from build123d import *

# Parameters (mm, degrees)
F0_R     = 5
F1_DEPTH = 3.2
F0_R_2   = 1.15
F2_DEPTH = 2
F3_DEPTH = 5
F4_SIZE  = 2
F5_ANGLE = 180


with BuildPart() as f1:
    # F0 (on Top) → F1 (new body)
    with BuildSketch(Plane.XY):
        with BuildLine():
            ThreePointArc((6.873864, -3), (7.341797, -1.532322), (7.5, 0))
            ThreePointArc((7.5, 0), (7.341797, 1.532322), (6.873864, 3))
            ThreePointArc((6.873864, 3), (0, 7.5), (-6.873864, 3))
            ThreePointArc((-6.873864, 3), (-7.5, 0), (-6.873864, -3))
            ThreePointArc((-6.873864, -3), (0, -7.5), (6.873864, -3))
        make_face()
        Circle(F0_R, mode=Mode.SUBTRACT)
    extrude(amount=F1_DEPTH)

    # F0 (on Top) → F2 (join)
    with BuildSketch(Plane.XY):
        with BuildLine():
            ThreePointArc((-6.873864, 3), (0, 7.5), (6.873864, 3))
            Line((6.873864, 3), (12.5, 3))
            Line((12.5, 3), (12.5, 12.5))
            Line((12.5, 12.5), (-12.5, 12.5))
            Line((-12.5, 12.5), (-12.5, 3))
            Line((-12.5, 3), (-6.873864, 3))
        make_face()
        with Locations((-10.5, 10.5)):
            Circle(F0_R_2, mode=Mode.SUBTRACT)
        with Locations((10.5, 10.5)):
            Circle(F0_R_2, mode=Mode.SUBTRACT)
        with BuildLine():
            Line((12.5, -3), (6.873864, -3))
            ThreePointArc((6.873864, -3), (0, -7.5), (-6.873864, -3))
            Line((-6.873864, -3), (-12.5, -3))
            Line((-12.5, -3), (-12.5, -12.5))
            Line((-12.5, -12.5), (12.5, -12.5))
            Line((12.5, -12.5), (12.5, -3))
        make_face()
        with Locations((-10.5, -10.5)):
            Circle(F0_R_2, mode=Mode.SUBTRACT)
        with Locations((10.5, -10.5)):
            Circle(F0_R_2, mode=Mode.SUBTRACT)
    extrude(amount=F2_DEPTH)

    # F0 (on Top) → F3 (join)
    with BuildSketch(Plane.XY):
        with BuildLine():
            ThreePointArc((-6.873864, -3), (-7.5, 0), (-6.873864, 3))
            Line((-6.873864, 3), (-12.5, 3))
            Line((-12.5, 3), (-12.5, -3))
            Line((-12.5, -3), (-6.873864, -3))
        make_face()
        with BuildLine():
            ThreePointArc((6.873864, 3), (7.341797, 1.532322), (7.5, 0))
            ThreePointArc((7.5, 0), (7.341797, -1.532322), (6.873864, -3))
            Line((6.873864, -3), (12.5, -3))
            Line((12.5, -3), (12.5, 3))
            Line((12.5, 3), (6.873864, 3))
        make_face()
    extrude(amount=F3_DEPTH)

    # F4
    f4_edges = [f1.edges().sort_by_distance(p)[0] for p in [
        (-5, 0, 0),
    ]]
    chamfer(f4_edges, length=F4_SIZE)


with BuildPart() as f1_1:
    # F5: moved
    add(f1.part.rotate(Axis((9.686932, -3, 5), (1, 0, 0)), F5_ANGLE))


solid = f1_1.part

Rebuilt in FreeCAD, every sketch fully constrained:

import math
import FreeCAD as App
import Part
import Sketcher

V = App.Vector
Q = App.Units.Quantity


def edges_at(feature, points):
    """Names of the edges that pass closest to the given points."""
    edges = feature.Shape.Edges
    near = lambda p: min(range(len(edges)), key=lambda i: edges[i].distToShape(Part.Vertex(*p))[0])
    return sorted({f"Edge{near(p) + 1}" for p in points})

doc = App.newDocument("Part")
body = doc.addObject("PartDesign::Body", "Body")

# Sketch on XY plane
sketch1 = body.newObject("Sketcher::SketchObject", "Sketch")
sketch1.AttachmentSupport = (doc.getObject("XY_Plane"), [""])
sketch1.MapMode = "FlatFace"
sketch1.addGeometry(Part.ArcOfCircle(Part.Circle(V(-0.000029, 0.000005, 0), V(0, 0, 1), 7.500029), math.radians(-23.578124), math.radians(-0.000038)), False)
sketch1.addGeometry(Part.ArcOfCircle(Part.Circle(V(-0.000029, -0.000005, 0), V(0, 0, 1), 7.500029), math.radians(0.000038), math.radians(23.578124)), False)
sketch1.addGeometry(Part.ArcOfCircle(Part.Circle(V(0, -0.000001, 0), V(0, 0, 1), 7.500001), math.radians(23.578182), math.radians(156.421818)), False)
sketch1.addGeometry(Part.ArcOfCircle(Part.Circle(V(0.000005, 0, 0), V(0, 0, 1), 7.500005), math.radians(156.421838), math.radians(203.578162)), False)
sketch1.addGeometry(Part.ArcOfCircle(Part.Circle(V(0, 0.000001, 0), V(0, 0, 1), 7.500001), math.radians(-156.421818), math.radians(-23.578182)), False)
sketch1.addGeometry(Part.Circle(V(0, 0, 0), V(0, 0, 1), 5), False)
sketch1.addConstraint(Sketcher.Constraint("Coincident", 0, 2, 1, 1))
sketch1.addConstraint(Sketcher.Constraint("Coincident", 1, 2, 2, 1))
sketch1.addConstraint(Sketcher.Constraint("Coincident", 2, 2, 3, 1))
sketch1.addConstraint(Sketcher.Constraint("Coincident", 3, 2, 4, 1))
sketch1.addConstraint(Sketcher.Constraint("Coincident", 4, 2, 0, 1))
sketch1.addConstraint(Sketcher.Constraint("Coincident", 2, 3, -1, 1))
sketch1.addConstraint(Sketcher.Constraint("Coincident", 3, 3, -1, 1))
sketch1.addConstraint(Sketcher.Constraint("Coincident", 4, 3, -1, 1))
sketch1.addConstraint(Sketcher.Constraint("Coincident", 5, 3, -1, 1))
sketch1.addConstraint(Sketcher.Constraint("Coincident", 1, 3, 0, 3))
sketch1.addConstraint(Sketcher.Constraint("PointOnObject", 0, 2, -1))
sketch1.addConstraint(Sketcher.Constraint("Diameter", 5, Q("10 mm")))
sketch1.addConstraint(Sketcher.Constraint("Radius", 2, Q("7.500001 mm")))
sketch1.addConstraint(Sketcher.Constraint("DistanceY", -1, 1, 1, 2, Q("3 mm")))
sketch1.addConstraint(Sketcher.Constraint("DistanceY", -1, 1, 2, 2, Q("3 mm")))
sketch1.addConstraint(Sketcher.Constraint("DistanceY", 3, 2, -1, 1, Q("3 mm")))
sketch1.addConstraint(Sketcher.Constraint("DistanceY", 4, 2, -1, 1, Q("3 mm")))
sketch1.addConstraint(Sketcher.Constraint("DistanceX", -1, 1, 0, 2, Q("7.5 mm")))
pad1 = body.newObject("PartDesign::Pad", "Pad")
pad1.Profile = sketch1
pad1.Length = 3.2

# Sketch on XY plane
sketch2 = body.newObject("Sketcher::SketchObject", "Sketch001")
sketch2.AttachmentSupport = (doc.getObject("XY_Plane"), [""])
sketch2.MapMode = "FlatFace"
sketch2.addGeometry(Part.ArcOfCircle(Part.Circle(V(0, -0.000001, 0), V(0, 0, 1), 7.500001), math.radians(23.578182), math.radians(156.421818)), False)
sketch2.addGeometry(Part.LineSegment(V(6.873864, 3, 0), V(12.5, 3, 0)), False)
sketch2.addGeometry(Part.LineSegment(V(12.5, 3, 0), V(12.5, 12.5, 0)), False)
sketch2.addGeometry(Part.LineSegment(V(12.5, 12.5, 0), V(-12.5, 12.5, 0)), False)
sketch2.addGeometry(Part.LineSegment(V(-12.5, 12.5, 0), V(-12.5, 3, 0)), False)
sketch2.addGeometry(Part.LineSegment(V(-12.5, 3, 0), V(-6.873864, 3, 0)), False)
sketch2.addGeometry(Part.Circle(V(-10.5, 10.5, 0), V(0, 0, 1), 1.15), False)
sketch2.addGeometry(Part.Circle(V(10.5, 10.5, 0), V(0, 0, 1), 1.15), False)
sketch2.addGeometry(Part.LineSegment(V(12.5, -3, 0), V(6.873864, -3, 0)), False)
sketch2.addGeometry(Part.ArcOfCircle(Part.Circle(V(0, 0.000001, 0), V(0, 0, 1), 7.500001), math.radians(-156.421818), math.radians(-23.578182)), False)
sketch2.addGeometry(Part.LineSegment(V(-6.873864, -3, 0), V(-12.5, -3, 0)), False)
sketch2.addGeometry(Part.LineSegment(V(-12.5, -3, 0), V(-12.5, -12.5, 0)), False)
sketch2.addGeometry(Part.LineSegment(V(-12.5, -12.5, 0), V(12.5, -12.5, 0)), False)
sketch2.addGeometry(Part.LineSegment(V(12.5, -12.5, 0), V(12.5, -3, 0)), False)
sketch2.addGeometry(Part.Circle(V(-10.5, -10.5, 0), V(0, 0, 1), 1.15), False)
sketch2.addGeometry(Part.Circle(V(10.5, -10.5, 0), V(0, 0, 1), 1.15), False)
sketch2.addConstraint(Sketcher.Constraint("Coincident", 0, 1, 1, 1))
sketch2.addConstraint(Sketcher.Constraint("Coincident", 1, 2, 2, 1))
sketch2.addConstraint(Sketcher.Constraint("Coincident", 2, 2, 3, 1))
sketch2.addConstraint(Sketcher.Constraint("Coincident", 3, 2, 4, 1))
sketch2.addConstraint(Sketcher.Constraint("Coincident", 4, 2, 5, 1))
sketch2.addConstraint(Sketcher.Constraint("Coincident", 5, 2, 0, 2))
sketch2.addConstraint(Sketcher.Constraint("Coincident", 8, 2, 9, 2))
sketch2.addConstraint(Sketcher.Constraint("Coincident", 9, 1, 10, 1))
sketch2.addConstraint(Sketcher.Constraint("Coincident", 10, 2, 11, 1))
sketch2.addConstraint(Sketcher.Constraint("Coincident", 11, 2, 12, 1))
sketch2.addConstraint(Sketcher.Constraint("Coincident", 12, 2, 13, 1))
sketch2.addConstraint(Sketcher.Constraint("Coincident", 13, 2, 8, 1))
sketch2.addConstraint(Sketcher.Constraint("Horizontal", 1))
sketch2.addConstraint(Sketcher.Constraint("Vertical", 2))
sketch2.addConstraint(Sketcher.Constraint("Horizontal", 3))
sketch2.addConstraint(Sketcher.Constraint("Vertical", 4))
sketch2.addConstraint(Sketcher.Constraint("Horizontal", 5))
sketch2.addConstraint(Sketcher.Constraint("Horizontal", 8))
sketch2.addConstraint(Sketcher.Constraint("Horizontal", 10))
sketch2.addConstraint(Sketcher.Constraint("Vertical", 11))
sketch2.addConstraint(Sketcher.Constraint("Horizontal", 12))
sketch2.addConstraint(Sketcher.Constraint("Vertical", 13))
sketch2.addConstraint(Sketcher.Constraint("Coincident", 0, 3, -1, 1))
sketch2.addConstraint(Sketcher.Constraint("Coincident", 9, 3, -1, 1))
sketch2.addConstraint(Sketcher.Constraint("Equal", 6, 7))
sketch2.addConstraint(Sketcher.Constraint("Equal", 0, 9))
sketch2.addConstraint(Sketcher.Constraint("Equal", 7, 14))
sketch2.addConstraint(Sketcher.Constraint("Equal", 14, 15))
sketch2.addConstraint(Sketcher.Constraint("Symmetric", 7, 3, 14, 3, -1, 1))
sketch2.addConstraint(Sketcher.Constraint("Symmetric", 6, 3, 15, 3, -1, 1))
sketch2.addConstraint(Sketcher.Constraint("Symmetric", 1, 2, 10, 2, -1, 1))
sketch2.addConstraint(Sketcher.Constraint("Symmetric", 3, 2, 12, 2, -1, 1))
sketch2.addConstraint(Sketcher.Constraint("Symmetric", 6, 3, 7, 3, -2))
sketch2.addConstraint(Sketcher.Constraint("Symmetric", 1, 2, 4, 2, -2))
sketch2.addConstraint(Sketcher.Constraint("Horizontal", 8, 2, 9, 1))
sketch2.addConstraint(Sketcher.Constraint("Diameter", 6, Q("2.3 mm")))
sketch2.addConstraint(Sketcher.Constraint("Radius", 0, Q("7.500001 mm")))
sketch2.addConstraint(Sketcher.Constraint("DistanceX", 3, 2, 3, 1, Q("25 mm")))
sketch2.addConstraint(Sketcher.Constraint("DistanceY", 2, 1, 2, 2, Q("9.5 mm")))
sketch2.addConstraint(Sketcher.Constraint("DistanceY", -1, 1, 0, 1, Q("3 mm")))
sketch2.addConstraint(Sketcher.Constraint("DistanceX", 6, 3, 7, 3, Q("21 mm")))
sketch2.addConstraint(Sketcher.Constraint("DistanceY", 14, 3, 6, 3, Q("21 mm")))
pad2 = body.newObject("PartDesign::Pad", "Pad001")
pad2.Profile = sketch2
pad2.Length = 2

# Sketch on XY plane
sketch3 = body.newObject("Sketcher::SketchObject", "Sketch002")
sketch3.AttachmentSupport = (doc.getObject("XY_Plane"), [""])
sketch3.MapMode = "FlatFace"
sketch3.addGeometry(Part.ArcOfCircle(Part.Circle(V(0.000005, 0, 0), V(0, 0, 1), 7.500005), math.radians(156.421838), math.radians(203.578162)), False)
sketch3.addGeometry(Part.LineSegment(V(-6.873864, 3, 0), V(-12.5, 3, 0)), False)
sketch3.addGeometry(Part.LineSegment(V(-12.5, 3, 0), V(-12.5, -3, 0)), False)
sketch3.addGeometry(Part.LineSegment(V(-12.5, -3, 0), V(-6.873864, -3, 0)), False)
sketch3.addGeometry(Part.ArcOfCircle(Part.Circle(V(-0.000029, -0.000005, 0), V(0, 0, 1), 7.500029), math.radians(0.000038), math.radians(23.578124)), False)
sketch3.addGeometry(Part.ArcOfCircle(Part.Circle(V(-0.000029, 0.000005, 0), V(0, 0, 1), 7.500029), math.radians(-23.578124), math.radians(-0.000038)), False)
sketch3.addGeometry(Part.LineSegment(V(6.873864, -3, 0), V(12.5, -3, 0)), False)
sketch3.addGeometry(Part.LineSegment(V(12.5, -3, 0), V(12.5, 3, 0)), False)
sketch3.addGeometry(Part.LineSegment(V(12.5, 3, 0), V(6.873864, 3, 0)), False)
sketch3.addConstraint(Sketcher.Constraint("Coincident", 0, 1, 1, 1))
sketch3.addConstraint(Sketcher.Constraint("Coincident", 1, 2, 2, 1))
sketch3.addConstraint(Sketcher.Constraint("Coincident", 2, 2, 3, 1))
sketch3.addConstraint(Sketcher.Constraint("Coincident", 3, 2, 0, 2))
sketch3.addConstraint(Sketcher.Constraint("Tangent", 4, 1, 5, 2))
sketch3.addConstraint(Sketcher.Constraint("Coincident", 5, 1, 6, 1))
sketch3.addConstraint(Sketcher.Constraint("Coincident", 6, 2, 7, 1))
sketch3.addConstraint(Sketcher.Constraint("Coincident", 7, 2, 8, 1))
sketch3.addConstraint(Sketcher.Constraint("Coincident", 8, 2, 4, 2))
sketch3.addConstraint(Sketcher.Constraint("Horizontal", 1))
sketch3.addConstraint(Sketcher.Constraint("Vertical", 2))
sketch3.addConstraint(Sketcher.Constraint("Horizontal", 3))
sketch3.addConstraint(Sketcher.Constraint("Horizontal", 6))
sketch3.addConstraint(Sketcher.Constraint("Vertical", 7))
sketch3.addConstraint(Sketcher.Constraint("Horizontal", 8))
sketch3.addConstraint(Sketcher.Constraint("Coincident", 0, 3, -1, 1))
sketch3.addConstraint(Sketcher.Constraint("Equal", 4, 5))
sketch3.addConstraint(Sketcher.Constraint("Symmetric", 0, 1, 5, 1, -1, 1))
sketch3.addConstraint(Sketcher.Constraint("Symmetric", 2, 2, 7, 2, -1, 1))
sketch3.addConstraint(Sketcher.Constraint("Symmetric", 0, 1, 8, 2, -2))
sketch3.addConstraint(Sketcher.Constraint("PointOnObject", 4, 1, -1))
sketch3.addConstraint(Sketcher.Constraint("DistanceY", 2, 2, 2, 1, Q("6 mm")))
sketch3.addConstraint(Sketcher.Constraint("DistanceX", 4, 1, 6, 2, Q("5 mm")))
sketch3.addConstraint(Sketcher.Constraint("DistanceX", 1, 2, -1, 1, Q("12.5 mm")))
sketch3.addConstraint(Sketcher.Constraint("Radius", 4, Q("7.500029 mm")))
pad3 = body.newObject("PartDesign::Pad", "Pad002")
pad3.Profile = sketch3
pad3.Length = 5
doc.recompute()

chamfer = body.newObject("PartDesign::Chamfer", "Chamfer")
chamfer.Base = (pad3, edges_at(pad3, [(-5, 0, 0)]))
chamfer.Size = 2
body2 = doc.addObject("PartDesign::Body", "Body001")
doc.recompute()

body.Placement = App.Placement(V(0, -6, 10), App.Rotation(V(1, 0, 0), 180))
boolean = body2.newObject("PartDesign::Boolean", "Boolean")
boolean.Type = "Fuse"
boolean.addObjects([body])

doc.recompute()
